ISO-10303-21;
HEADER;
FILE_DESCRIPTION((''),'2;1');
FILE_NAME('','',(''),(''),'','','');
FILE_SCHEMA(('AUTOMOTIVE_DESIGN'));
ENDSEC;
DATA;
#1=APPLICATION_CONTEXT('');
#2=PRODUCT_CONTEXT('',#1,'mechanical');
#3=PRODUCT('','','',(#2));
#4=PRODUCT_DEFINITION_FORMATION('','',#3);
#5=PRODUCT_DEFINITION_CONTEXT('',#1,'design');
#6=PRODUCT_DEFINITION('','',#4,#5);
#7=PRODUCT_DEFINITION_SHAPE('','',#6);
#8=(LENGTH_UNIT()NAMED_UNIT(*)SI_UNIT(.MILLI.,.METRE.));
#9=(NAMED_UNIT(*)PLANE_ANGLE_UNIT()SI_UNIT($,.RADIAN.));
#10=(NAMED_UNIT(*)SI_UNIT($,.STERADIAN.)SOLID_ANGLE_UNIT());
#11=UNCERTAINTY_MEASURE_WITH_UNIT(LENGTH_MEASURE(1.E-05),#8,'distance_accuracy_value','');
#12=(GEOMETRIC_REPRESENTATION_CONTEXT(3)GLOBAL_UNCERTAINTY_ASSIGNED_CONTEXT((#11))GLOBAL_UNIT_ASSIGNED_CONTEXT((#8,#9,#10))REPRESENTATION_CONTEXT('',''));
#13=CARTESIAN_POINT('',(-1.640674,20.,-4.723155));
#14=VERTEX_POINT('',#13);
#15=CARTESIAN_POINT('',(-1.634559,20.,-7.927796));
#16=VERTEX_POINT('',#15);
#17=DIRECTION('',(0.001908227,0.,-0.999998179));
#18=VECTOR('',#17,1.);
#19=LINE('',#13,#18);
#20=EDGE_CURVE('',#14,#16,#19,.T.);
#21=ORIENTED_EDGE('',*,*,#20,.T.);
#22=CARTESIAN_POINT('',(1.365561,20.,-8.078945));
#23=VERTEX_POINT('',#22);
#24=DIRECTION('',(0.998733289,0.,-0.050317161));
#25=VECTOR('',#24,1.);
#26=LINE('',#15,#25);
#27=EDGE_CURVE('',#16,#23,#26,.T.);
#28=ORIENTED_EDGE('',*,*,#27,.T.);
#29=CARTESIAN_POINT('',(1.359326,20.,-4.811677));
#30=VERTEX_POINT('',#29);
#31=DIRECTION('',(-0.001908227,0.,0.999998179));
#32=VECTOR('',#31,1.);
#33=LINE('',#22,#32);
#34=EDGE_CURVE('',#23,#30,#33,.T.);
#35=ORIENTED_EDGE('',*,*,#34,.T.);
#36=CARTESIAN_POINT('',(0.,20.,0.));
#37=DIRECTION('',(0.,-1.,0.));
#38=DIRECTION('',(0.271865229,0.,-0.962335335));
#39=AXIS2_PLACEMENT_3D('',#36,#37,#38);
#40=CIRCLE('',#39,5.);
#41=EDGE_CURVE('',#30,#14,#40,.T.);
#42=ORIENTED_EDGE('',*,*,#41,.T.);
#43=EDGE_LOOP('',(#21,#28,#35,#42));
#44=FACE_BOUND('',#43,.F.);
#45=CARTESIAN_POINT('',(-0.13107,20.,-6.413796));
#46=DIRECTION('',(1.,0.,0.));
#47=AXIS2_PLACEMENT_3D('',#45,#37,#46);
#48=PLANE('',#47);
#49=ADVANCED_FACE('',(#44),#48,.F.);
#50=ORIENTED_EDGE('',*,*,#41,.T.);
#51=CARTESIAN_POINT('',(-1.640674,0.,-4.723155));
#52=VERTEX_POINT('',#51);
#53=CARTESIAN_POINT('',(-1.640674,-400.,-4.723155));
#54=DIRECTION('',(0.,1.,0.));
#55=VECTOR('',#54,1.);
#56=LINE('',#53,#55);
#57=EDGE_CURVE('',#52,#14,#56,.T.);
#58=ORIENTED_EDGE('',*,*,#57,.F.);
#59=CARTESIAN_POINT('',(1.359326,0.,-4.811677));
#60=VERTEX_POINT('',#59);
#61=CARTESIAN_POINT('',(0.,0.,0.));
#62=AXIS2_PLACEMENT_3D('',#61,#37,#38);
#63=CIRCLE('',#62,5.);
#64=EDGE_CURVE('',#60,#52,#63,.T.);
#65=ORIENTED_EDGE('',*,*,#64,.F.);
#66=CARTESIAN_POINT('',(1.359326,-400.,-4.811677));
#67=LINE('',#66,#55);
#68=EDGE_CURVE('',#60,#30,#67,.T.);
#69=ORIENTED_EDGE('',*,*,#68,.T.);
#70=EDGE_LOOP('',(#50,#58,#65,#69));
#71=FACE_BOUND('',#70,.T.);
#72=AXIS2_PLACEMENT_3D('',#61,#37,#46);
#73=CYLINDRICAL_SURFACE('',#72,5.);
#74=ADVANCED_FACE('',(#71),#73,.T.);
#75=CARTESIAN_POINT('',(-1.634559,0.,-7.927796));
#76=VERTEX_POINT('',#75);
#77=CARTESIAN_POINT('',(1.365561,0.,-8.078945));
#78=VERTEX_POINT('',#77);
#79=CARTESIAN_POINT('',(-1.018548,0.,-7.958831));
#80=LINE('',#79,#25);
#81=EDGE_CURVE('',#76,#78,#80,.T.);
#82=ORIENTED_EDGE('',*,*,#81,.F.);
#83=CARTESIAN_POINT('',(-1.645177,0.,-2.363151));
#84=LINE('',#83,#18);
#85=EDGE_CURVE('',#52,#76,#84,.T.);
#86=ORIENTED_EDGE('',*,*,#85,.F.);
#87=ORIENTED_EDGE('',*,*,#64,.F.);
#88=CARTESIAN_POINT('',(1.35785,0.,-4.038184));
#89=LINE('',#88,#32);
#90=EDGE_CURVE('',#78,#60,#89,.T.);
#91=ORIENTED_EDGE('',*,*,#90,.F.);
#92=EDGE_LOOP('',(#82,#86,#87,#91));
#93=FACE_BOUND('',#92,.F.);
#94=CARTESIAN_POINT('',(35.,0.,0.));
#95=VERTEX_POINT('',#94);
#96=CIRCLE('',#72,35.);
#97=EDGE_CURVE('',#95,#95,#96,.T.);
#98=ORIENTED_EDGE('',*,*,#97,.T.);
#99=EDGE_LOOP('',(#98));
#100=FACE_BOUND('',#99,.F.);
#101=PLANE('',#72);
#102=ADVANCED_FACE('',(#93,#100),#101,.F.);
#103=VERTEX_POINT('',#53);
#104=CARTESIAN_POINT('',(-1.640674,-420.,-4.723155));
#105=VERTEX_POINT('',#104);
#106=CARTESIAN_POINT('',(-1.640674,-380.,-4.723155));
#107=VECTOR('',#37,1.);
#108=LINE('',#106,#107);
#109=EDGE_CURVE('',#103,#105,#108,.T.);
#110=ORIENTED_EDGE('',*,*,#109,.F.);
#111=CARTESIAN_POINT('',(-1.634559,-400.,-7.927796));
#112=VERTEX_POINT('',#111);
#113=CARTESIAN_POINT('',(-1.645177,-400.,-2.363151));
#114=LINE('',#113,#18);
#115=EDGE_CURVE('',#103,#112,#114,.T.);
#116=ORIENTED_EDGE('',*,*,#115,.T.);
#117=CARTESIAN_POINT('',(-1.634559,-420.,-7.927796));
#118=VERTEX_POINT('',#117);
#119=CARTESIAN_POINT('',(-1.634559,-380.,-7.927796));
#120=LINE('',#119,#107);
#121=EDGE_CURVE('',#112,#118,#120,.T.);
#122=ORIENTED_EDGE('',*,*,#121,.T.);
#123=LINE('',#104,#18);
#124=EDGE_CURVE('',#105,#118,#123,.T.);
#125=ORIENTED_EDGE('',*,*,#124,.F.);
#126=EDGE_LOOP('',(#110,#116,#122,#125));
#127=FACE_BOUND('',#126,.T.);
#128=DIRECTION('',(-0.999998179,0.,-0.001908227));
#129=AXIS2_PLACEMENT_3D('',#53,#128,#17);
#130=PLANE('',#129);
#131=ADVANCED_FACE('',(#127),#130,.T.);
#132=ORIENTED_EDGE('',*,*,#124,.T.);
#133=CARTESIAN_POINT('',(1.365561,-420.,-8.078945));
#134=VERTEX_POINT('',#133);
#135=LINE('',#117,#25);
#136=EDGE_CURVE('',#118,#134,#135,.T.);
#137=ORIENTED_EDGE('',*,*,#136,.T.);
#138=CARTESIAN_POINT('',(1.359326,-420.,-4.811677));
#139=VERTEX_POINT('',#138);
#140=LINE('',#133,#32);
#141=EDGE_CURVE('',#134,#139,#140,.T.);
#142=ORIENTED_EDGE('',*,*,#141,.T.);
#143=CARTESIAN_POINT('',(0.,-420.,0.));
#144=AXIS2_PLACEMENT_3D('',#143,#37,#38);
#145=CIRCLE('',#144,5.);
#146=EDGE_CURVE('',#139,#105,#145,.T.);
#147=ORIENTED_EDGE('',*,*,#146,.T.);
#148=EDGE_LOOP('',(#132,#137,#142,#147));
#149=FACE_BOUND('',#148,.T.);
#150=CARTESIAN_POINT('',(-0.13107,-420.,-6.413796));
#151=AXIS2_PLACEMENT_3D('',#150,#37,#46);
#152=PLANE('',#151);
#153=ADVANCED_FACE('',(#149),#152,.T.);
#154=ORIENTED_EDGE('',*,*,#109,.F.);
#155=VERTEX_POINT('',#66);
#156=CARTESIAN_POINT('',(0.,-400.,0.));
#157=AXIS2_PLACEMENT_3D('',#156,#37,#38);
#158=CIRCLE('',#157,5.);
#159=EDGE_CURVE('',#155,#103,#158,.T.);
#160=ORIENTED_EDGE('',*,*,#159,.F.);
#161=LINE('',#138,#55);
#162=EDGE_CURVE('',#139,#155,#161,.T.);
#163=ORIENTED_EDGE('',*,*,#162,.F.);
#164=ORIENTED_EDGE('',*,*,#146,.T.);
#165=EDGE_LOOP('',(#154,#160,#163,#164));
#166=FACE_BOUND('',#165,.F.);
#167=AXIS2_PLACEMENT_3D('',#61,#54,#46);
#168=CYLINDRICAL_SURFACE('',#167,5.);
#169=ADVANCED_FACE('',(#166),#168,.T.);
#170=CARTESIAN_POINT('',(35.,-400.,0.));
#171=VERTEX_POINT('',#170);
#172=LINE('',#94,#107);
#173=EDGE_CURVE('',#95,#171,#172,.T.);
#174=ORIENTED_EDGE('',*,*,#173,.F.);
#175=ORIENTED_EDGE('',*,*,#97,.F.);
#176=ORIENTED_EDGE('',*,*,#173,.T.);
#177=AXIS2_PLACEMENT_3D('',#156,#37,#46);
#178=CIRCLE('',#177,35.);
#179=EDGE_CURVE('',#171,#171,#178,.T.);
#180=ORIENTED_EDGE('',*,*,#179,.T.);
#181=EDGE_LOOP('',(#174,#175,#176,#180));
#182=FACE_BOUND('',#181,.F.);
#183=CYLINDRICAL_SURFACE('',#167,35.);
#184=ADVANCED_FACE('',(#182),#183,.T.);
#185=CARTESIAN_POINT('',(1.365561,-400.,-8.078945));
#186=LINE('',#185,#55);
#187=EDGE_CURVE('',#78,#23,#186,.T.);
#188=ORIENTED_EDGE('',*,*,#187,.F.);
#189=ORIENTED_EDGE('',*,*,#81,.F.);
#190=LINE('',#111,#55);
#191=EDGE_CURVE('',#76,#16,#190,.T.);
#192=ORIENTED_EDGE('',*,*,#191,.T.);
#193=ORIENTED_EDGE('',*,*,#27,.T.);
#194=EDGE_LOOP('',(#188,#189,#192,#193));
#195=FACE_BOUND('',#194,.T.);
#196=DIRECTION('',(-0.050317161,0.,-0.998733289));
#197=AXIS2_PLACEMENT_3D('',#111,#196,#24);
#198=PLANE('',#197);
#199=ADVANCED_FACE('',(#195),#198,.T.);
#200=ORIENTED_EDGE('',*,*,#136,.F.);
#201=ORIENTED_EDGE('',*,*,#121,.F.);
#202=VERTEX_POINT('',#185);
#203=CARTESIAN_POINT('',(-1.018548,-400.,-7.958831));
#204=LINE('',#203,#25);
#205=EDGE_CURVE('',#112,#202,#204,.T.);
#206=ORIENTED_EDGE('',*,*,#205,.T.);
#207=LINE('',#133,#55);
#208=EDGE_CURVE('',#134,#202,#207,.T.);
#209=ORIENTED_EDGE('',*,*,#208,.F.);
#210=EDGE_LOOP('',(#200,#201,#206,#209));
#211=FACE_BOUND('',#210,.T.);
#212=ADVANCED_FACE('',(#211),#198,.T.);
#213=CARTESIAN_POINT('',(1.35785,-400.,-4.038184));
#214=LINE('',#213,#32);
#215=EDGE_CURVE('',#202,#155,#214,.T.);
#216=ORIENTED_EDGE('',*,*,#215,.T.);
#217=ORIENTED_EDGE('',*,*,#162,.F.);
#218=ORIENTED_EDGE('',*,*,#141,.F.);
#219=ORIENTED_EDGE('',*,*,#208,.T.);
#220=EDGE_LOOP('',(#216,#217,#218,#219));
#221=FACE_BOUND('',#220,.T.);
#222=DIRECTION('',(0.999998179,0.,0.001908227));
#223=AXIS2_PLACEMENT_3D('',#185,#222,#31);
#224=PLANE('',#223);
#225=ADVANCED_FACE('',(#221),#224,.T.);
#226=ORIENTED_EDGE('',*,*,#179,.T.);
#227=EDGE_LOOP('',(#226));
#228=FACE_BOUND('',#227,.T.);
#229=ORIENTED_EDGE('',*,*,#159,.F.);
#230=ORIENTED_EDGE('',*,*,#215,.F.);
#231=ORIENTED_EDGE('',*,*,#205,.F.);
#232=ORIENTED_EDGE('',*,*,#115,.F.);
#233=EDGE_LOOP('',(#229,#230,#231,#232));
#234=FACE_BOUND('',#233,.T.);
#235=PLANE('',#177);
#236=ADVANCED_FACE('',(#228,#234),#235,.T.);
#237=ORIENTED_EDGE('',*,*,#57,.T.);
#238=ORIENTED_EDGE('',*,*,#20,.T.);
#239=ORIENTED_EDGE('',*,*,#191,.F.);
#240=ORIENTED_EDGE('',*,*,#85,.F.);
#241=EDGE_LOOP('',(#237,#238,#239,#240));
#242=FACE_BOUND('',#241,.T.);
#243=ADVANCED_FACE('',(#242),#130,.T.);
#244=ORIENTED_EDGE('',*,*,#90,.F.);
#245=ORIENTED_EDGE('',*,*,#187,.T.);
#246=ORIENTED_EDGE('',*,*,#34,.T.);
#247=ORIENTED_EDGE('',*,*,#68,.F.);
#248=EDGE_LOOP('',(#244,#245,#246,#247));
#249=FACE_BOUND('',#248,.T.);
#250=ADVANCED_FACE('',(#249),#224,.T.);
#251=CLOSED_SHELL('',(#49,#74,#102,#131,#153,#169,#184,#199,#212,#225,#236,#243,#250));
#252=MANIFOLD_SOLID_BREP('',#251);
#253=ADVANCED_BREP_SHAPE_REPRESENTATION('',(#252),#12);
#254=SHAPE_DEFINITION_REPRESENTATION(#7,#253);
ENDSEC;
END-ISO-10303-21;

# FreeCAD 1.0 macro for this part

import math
import FreeCAD as App
import Part
import Sketcher

V = App.Vector
Q = App.Units.Quantity

doc = App.newDocument("Part")
body = doc.addObject("PartDesign::Body", "Body")

sketch1 = body.newObject("Sketcher::SketchObject", "Sketch")
sketch1.AttachmentSupport = (doc.getObject("XZ_Plane"), [""])
sketch1.MapMode = "FlatFace"
sketch1.addGeometry(Part.Circle(V(0, 0, 0), V(0, 0, 1), 35), False)
sketch1.addConstraint([
    Sketcher.Constraint("Coincident", 0, 3, -1, 1),
    Sketcher.Constraint("Diameter", 0, Q("70 mm")),
])
pad1 = body.newObject("PartDesign::Pad", "Pad")
pad1.Profile = sketch1
pad1.Length = 400

sketch2 = body.newObject("Sketcher::SketchObject", "Sketch001")
sketch2.AttachmentSupport = (doc.getObject("XZ_Plane"), [""])
sketch2.MapMode = "FlatFace"
sketch2.addGeometry(Part.Circle(V(0, 0, 0), V(0, 0, 1), 5), False)
sketch2.addConstraint([
    Sketcher.Constraint("Coincident", 0, 3, -1, 1),
    Sketcher.Constraint("Diameter", 0, Q("10 mm")),
])
pad2 = body.newObject("PartDesign::Pad", "Pad001")
pad2.Profile = sketch2
pad2.Length = 20
pad2.Reversed = True

sketch3 = body.newObject("Sketcher::SketchObject", "Sketch002")
sketch3.AttachmentSupport = (doc.getObject("XZ_Plane"), [""])
sketch3.MapMode = "FlatFace"
sketch3.addGeometry(Part.Circle(V(0, 0, 0), V(0, 0, 1), 5), False)
sketch3.addConstraint([
    Sketcher.Constraint("Coincident", 0, 3, -1, 1),
    Sketcher.Constraint("Diameter", 0, Q("10 mm")),
])
pad3 = body.newObject("PartDesign::Pad", "Pad002")
pad3.Profile = sketch3
pad3.Length = 420

sketch4 = body.newObject("Sketcher::SketchObject", "Sketch003")
sketch4.AttachmentSupport = (doc.getObject("XZ_Plane"), [""])
sketch4.MapMode = "FlatFace"
sketch4.AttachmentOffset = App.Placement(V(0, 0, 400), App.Rotation())
sketch4.addGeometry([
    Part.ArcOfCircle(Part.Circle(V(0, 0, 0), V(0, 0, 1), 5), math.radians(-109.155603), math.radians(-74.224711)),
    Part.LineSegment(V(-1.640674, -4.723155, 0), V(-1.634559, -7.927796, 0)),
    Part.LineSegment(V(-1.634559, -7.927796, 0), V(1.365561, -8.078945, 0)),
    Part.LineSegment(V(1.365561, -8.078945, 0), V(1.359326, -4.811677, 0)),
], False)
sketch4.addConstraint([
    Sketcher.Constraint("Coincident", 0, 1, 1, 1),
    Sketcher.Constraint("Coincident", 1, 2, 2, 1),
    Sketcher.Constraint("Coincident", 2, 2, 3, 1),
    Sketcher.Constraint("Coincident", 3, 2, 0, 2),
    Sketcher.Constraint("Coincident", 0, 3, -1, 1),
    Sketcher.Constraint("Radius", 0, Q("5 mm")),
    Sketcher.Constraint("DistanceX", 0, 1, 3, 2, Q("3 mm")),
    Sketcher.Constraint("DistanceX", 1, 2, -1, 1, Q("1.634559 mm")),
    Sketcher.Constraint("DistanceX", -1, 1, 2, 2, Q("1.365561 mm")),
    Sketcher.Constraint("DistanceY", 1, 2, 0, 1, Q("3.204641 mm")),
    Sketcher.Constraint("DistanceY", 2, 2, 1, 2, Q("0.151149 mm")),
    Sketcher.Constraint("DistanceY", 2, 2, 3, 2, Q("3.267268 mm")),
])
pad4 = body.newObject("PartDesign::Pad", "Pad003")
pad4.Profile = sketch4
pad4.Length = 40
pad4.Midplane = True

sketch5 = body.newObject("Sketcher::SketchObject", "Sketch004")
sketch5.AttachmentSupport = (doc.getObject("XZ_Plane"), [""])
sketch5.MapMode = "FlatFace"
sketch5.AttachmentOffset = App.Placement(V(0, 0, 400), App.Rotation())
sketch5.addGeometry([
    Part.ArcOfCircle(Part.Circle(V(0, 0, 0), V(0, 0, 1), 5), math.radians(-109.155603), math.radians(-74.224711)),
    Part.LineSegment(V(-1.640674, -4.723155, 0), V(-1.634559, -7.927796, 0)),
    Part.LineSegment(V(-1.634559, -7.927796, 0), V(1.365561, -8.078945, 0)),
    Part.LineSegment(V(1.365561, -8.078945, 0), V(1.359326, -4.811677, 0)),
], False)
sketch5.addConstraint([
    Sketcher.Constraint("Coincident", 0, 1, 1, 1),
    Sketcher.Constraint("Coincident", 1, 2, 2, 1),
    Sketcher.Constraint("Coincident", 2, 2, 3, 1),
    Sketcher.Constraint("Coincident", 3, 2, 0, 2),
    Sketcher.Constraint("Coincident", 0, 3, -1, 1),
    Sketcher.Constraint("Radius", 0, Q("5 mm")),
    Sketcher.Constraint("DistanceX", 0, 1, 3, 2, Q("3 mm")),
    Sketcher.Constraint("DistanceX", 1, 2, -1, 1, Q("1.634559 mm")),
    Sketcher.Constraint("DistanceX", -1, 1, 2, 2, Q("1.365561 mm")),
    Sketcher.Constraint("DistanceY", 1, 2, 0, 1, Q("3.204641 mm")),
    Sketcher.Constraint("DistanceY", 2, 2, 1, 2, Q("0.151149 mm")),
    Sketcher.Constraint("DistanceY", 2, 2, 3, 2, Q("3.267268 mm")),
])
pad5 = body.newObject("PartDesign::Pad", "Pad004")
pad5.Profile = sketch5
pad5.Length = 420
pad5.Reversed = True

doc.recompute()
